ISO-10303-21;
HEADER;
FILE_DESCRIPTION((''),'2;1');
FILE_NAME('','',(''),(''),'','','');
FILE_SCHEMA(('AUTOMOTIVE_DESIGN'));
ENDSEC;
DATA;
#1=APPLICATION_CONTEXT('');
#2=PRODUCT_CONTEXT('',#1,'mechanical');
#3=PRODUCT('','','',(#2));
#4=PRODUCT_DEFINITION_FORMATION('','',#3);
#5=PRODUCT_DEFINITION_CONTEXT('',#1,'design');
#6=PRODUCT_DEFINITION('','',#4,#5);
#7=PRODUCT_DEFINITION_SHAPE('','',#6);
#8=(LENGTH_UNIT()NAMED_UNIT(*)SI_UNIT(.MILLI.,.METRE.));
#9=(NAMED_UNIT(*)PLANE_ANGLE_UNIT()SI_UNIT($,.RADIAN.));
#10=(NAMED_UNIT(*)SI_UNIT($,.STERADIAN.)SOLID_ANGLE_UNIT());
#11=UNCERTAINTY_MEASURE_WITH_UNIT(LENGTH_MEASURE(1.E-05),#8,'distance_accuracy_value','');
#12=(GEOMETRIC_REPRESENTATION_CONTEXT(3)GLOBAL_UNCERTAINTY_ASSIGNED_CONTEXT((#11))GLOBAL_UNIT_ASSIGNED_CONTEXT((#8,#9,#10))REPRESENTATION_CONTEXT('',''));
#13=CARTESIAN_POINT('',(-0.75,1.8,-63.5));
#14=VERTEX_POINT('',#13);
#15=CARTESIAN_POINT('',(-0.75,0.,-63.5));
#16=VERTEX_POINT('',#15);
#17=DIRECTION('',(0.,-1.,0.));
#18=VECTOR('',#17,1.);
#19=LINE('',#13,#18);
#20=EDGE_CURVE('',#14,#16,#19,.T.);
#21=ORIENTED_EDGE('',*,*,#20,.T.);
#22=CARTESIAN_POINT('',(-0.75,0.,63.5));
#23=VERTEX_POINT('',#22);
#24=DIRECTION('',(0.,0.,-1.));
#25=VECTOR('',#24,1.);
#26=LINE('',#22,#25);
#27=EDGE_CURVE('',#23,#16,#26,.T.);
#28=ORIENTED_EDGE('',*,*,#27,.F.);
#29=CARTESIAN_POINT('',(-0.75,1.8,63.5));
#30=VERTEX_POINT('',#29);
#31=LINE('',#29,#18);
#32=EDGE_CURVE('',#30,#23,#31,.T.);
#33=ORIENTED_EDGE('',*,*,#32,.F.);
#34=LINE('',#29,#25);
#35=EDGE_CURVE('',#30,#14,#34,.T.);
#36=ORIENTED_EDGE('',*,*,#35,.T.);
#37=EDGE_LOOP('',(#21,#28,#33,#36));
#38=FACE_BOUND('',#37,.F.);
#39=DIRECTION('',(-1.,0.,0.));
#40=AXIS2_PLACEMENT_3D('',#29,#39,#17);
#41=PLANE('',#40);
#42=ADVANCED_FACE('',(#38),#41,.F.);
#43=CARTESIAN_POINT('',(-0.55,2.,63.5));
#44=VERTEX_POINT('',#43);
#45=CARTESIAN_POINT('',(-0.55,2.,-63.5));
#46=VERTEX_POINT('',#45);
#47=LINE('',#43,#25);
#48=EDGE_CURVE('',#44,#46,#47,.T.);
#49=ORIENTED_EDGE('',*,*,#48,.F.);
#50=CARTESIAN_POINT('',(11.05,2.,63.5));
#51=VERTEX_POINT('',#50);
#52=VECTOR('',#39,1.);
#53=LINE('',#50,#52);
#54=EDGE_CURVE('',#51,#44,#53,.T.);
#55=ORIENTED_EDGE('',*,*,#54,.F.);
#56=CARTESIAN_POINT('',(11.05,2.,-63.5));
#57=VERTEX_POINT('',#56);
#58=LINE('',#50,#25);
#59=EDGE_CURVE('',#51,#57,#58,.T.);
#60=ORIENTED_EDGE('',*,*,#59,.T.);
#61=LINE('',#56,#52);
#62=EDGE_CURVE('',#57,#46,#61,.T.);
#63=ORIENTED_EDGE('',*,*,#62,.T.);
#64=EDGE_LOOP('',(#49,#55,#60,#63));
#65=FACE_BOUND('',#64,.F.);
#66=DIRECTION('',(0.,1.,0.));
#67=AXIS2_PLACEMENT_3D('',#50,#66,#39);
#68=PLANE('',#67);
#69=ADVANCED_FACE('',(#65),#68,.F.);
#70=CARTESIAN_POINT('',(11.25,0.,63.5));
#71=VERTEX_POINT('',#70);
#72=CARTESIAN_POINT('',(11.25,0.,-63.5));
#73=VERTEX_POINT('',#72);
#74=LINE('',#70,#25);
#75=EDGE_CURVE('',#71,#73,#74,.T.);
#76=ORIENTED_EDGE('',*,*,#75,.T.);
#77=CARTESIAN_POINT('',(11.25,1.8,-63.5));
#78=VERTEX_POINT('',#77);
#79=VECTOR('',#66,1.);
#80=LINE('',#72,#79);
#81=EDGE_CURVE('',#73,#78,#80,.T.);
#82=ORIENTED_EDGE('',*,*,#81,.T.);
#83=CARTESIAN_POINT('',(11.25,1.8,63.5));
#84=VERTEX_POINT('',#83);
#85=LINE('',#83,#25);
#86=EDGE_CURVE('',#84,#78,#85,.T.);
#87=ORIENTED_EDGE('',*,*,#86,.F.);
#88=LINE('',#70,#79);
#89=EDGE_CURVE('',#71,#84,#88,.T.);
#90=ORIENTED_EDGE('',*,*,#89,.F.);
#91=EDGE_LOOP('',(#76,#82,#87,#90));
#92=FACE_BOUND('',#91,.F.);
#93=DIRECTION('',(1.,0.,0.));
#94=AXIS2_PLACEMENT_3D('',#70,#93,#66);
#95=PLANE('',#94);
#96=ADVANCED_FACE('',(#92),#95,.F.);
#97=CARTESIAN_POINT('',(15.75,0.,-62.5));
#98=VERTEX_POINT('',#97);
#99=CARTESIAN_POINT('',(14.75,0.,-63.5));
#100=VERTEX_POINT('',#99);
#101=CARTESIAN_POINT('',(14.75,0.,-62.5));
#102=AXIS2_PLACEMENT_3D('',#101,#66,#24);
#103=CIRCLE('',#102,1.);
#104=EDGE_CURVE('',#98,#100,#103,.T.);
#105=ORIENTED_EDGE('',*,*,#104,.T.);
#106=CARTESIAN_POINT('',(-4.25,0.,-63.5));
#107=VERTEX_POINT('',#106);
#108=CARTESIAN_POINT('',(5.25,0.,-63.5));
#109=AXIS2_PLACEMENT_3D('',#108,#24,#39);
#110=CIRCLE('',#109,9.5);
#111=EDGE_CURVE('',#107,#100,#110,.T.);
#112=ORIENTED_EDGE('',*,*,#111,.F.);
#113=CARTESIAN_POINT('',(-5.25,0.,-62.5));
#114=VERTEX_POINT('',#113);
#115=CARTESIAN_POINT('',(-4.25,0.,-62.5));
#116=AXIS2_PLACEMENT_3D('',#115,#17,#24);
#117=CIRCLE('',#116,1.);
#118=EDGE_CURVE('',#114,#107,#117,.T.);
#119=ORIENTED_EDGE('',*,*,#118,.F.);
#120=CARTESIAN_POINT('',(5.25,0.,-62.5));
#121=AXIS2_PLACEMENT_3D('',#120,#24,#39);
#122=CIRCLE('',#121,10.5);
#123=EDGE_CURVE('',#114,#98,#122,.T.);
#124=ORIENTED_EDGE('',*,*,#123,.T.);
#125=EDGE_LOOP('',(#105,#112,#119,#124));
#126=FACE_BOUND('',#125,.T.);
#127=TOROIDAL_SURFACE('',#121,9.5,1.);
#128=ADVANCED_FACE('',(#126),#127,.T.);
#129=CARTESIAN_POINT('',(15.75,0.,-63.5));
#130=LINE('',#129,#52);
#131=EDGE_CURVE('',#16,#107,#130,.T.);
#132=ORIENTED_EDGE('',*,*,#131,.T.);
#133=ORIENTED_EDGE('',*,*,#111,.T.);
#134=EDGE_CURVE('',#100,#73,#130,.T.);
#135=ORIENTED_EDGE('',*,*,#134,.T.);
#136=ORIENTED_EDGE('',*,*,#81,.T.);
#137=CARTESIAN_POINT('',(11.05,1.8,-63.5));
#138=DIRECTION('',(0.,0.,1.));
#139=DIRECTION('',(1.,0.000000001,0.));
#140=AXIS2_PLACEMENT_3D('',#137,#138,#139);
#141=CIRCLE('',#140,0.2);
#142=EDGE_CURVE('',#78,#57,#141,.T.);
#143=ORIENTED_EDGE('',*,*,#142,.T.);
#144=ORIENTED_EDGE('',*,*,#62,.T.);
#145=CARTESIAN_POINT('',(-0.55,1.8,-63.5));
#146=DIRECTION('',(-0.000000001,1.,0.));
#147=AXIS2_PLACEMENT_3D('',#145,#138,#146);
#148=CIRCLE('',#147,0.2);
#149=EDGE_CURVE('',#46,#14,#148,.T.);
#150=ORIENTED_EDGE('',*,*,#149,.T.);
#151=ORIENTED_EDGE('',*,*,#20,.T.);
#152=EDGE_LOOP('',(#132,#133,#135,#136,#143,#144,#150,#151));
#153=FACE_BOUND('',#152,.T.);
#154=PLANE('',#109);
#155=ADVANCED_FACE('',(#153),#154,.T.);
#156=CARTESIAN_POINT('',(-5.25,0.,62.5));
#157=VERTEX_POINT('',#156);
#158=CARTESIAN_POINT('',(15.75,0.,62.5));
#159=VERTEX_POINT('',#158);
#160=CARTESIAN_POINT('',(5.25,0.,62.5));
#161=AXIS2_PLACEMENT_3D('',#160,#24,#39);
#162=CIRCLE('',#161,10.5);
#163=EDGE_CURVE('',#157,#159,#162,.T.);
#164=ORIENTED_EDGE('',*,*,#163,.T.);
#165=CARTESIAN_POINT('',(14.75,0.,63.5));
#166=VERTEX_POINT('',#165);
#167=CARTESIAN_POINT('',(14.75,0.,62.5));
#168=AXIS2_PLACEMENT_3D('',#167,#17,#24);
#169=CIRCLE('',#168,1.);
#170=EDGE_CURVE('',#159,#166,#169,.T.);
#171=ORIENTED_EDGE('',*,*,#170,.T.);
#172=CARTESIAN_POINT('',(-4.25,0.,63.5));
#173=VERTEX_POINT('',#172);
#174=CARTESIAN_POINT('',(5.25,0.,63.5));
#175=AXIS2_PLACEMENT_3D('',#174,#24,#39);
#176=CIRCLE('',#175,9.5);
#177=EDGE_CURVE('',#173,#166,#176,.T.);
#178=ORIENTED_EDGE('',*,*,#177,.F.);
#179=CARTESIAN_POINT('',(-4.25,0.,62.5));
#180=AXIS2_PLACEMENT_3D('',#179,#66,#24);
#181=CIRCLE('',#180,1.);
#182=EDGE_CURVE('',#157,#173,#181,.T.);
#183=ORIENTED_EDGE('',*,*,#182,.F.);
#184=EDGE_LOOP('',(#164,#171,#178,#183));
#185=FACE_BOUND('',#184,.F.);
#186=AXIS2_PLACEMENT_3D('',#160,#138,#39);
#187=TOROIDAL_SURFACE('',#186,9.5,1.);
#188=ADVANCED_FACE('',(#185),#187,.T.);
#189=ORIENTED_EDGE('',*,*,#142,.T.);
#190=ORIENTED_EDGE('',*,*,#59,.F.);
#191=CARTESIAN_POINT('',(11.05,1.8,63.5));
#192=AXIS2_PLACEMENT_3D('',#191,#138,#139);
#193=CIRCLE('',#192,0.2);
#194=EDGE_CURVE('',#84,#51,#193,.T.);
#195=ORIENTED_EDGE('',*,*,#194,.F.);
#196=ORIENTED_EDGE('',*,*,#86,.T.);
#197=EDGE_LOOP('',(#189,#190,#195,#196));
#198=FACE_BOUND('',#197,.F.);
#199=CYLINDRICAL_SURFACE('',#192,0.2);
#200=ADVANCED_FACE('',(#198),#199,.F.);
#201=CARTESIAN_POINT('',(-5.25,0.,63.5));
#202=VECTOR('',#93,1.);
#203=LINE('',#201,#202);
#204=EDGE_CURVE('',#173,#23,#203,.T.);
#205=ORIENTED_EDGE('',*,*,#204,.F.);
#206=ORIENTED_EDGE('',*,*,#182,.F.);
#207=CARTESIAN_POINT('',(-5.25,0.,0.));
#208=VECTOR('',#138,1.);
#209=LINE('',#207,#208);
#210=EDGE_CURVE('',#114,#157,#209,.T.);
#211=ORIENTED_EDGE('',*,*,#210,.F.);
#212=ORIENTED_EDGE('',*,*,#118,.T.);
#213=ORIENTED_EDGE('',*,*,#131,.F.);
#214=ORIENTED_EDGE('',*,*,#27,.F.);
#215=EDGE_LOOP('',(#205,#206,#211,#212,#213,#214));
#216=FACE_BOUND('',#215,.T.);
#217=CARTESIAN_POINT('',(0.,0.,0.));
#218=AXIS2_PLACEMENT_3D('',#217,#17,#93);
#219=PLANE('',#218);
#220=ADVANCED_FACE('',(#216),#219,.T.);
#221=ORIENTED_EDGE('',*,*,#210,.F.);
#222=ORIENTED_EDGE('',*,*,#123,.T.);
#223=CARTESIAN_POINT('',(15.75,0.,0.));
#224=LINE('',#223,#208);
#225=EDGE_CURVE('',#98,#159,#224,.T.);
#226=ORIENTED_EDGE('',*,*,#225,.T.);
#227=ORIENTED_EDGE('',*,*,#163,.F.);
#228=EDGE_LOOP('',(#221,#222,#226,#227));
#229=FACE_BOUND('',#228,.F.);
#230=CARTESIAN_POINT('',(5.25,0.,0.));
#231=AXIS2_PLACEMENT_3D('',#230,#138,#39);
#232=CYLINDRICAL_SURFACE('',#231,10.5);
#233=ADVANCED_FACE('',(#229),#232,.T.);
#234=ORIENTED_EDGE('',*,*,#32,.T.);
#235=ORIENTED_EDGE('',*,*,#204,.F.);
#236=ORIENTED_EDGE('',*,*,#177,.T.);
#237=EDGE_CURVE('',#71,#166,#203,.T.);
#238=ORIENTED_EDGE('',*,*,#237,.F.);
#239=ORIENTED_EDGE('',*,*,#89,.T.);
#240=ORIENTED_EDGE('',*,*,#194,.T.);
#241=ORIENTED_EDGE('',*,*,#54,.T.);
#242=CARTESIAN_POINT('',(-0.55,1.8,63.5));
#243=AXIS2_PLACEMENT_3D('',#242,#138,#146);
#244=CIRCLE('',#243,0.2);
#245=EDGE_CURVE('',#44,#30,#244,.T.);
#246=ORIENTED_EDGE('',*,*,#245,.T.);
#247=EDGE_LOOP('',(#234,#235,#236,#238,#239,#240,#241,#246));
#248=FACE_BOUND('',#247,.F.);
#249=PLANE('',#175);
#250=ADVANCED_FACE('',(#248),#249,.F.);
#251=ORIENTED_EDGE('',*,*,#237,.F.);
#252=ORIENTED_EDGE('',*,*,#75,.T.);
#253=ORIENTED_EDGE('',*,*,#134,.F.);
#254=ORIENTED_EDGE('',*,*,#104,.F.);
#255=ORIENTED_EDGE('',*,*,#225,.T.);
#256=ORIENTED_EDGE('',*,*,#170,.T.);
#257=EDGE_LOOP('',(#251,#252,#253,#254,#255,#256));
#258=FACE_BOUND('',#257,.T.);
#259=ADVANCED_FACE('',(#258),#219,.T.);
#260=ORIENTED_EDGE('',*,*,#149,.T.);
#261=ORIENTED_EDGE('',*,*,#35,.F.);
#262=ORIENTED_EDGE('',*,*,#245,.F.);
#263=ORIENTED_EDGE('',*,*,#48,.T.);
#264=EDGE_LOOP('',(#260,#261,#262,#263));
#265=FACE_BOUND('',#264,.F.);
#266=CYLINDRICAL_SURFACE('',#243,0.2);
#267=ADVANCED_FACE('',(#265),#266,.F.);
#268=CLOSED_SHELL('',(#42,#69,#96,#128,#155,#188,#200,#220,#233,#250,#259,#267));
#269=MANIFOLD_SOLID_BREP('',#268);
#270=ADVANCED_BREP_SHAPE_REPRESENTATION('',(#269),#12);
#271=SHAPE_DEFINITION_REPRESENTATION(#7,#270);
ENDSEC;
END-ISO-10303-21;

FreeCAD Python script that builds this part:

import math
import FreeCAD as App
import Part
import Sketcher

V = App.Vector


def edges_at(feature, points):
    """Names of the edges that pass closest to the given points."""
    edges = feature.Shape.Edges
    near = lambda p: min(range(len(edges)), key=lambda i: edges[i].distToShape(Part.Vertex(*p))[0])
    return sorted({f"Edge{near(p) + 1}" for p in points})

doc = App.newDocument("Part")
body = doc.addObject("PartDesign::Body", "Body")

# Sketch on XZ plane
sketch1 = body.newObject("Sketcher::SketchObject", "Sketch")
sketch1.AttachmentSupport = (doc.getObject("XZ_Plane"), [""])
sketch1.MapMode = "FlatFace"
sketch1.addGeometry(Part.LineSegment(V(-5, 64, 0), V(-5, -64, 0)), False)
sketch1.addGeometry(Part.LineSegment(V(-5, -64, 0), V(5, -64, 0)), False)
sketch1.addGeometry(Part.LineSegment(V(5, -64, 0), V(5, 64, 0)), False)
sketch1.addGeometry(Part.LineSegment(V(5, 64, 0), V(-5, 64, 0)), False)
sketch1.addGeometry(Part.LineSegment(V(5, 64, 0), V(5, -64, 0)), True)  # axis
sketch1.addConstraint(Sketcher.Constraint("Coincident", 0, 2, 1, 1))
sketch1.addConstraint(Sketcher.Constraint("Coincident", 1, 2, 2, 1))
sketch1.addConstraint(Sketcher.Constraint("Coincident", 2, 2, 3, 1))
sketch1.addConstraint(Sketcher.Constraint("Coincident", 3, 2, 0, 1))
sketch1.addConstraint(Sketcher.Constraint("Vertical", 0))
sketch1.addConstraint(Sketcher.Constraint("Horizontal", 1))
sketch1.addConstraint(Sketcher.Constraint("Vertical", 2))
sketch1.addConstraint(Sketcher.Constraint("Horizontal", 3))
sketch1.addConstraint(Sketcher.Constraint("Vertical", 4))
sketch1.addConstraint(Sketcher.Constraint("Coincident", 4, 1, 2, 2))
sketch1.addConstraint(Sketcher.Constraint("Symmetric", 0, 2, 2, 2, -1, 1))
sketch1.addConstraint(Sketcher.Constraint("Horizontal", 0, 2, 4, 2))
sketch1.addConstraint(Sketcher.Constraint("DistanceY", 0, 2, 0, 1, 127.0))
sketch1.addConstraint(Sketcher.Constraint("DistanceX", 1, 1, 1, 2, 10.5))
revolution = body.newObject("PartDesign::Revolution", "Revolution")
revolution.Profile = sketch1
revolution.ReferenceAxis = (sketch1, ["Axis0"])
revolution.Angle = 180

# Sketch on XY plane
sketch2 = body.newObject("Sketcher::SketchObject", "Sketch001")
sketch2.AttachmentSupport = (doc.getObject("XY_Plane"), [""])
sketch2.MapMode = "FlatFace"
sketch2.AttachmentOffset = App.Placement(V(0, 0, 63.5), App.Rotation())
sketch2.addGeometry(Part.LineSegment(V(-0.75, 0, 0), V(11.25, 0, 0)), False)
sketch2.addGeometry(Part.LineSegment(V(11.25, 0, 0), V(11.25, 1.8, 0)), False)
sketch2.addGeometry(Part.ArcOfCircle(Part.Circle(V(11.05, 1.8, 0), V(0, 0, 1), 0.2), math.radians(0), math.radians(90)), False)
sketch2.addGeometry(Part.LineSegment(V(11.05, 2, 0), V(-0.55, 2, 0)), False)
sketch2.addGeometry(Part.ArcOfCircle(Part.Circle(V(-0.55, 1.8, 0), V(0, 0, 1), 0.2), math.radians(90), math.radians(180)), False)
sketch2.addGeometry(Part.LineSegment(V(-0.75, 1.8, 0), V(-0.75, 0, 0)), False)
sketch2.addConstraint(Sketcher.Constraint("Coincident", 0, 2, 1, 1))
sketch2.addConstraint(Sketcher.Constraint("Tangent", 1, 2, 2, 1))
sketch2.addConstraint(Sketcher.Constraint("Tangent", 2, 2, 3, 1))
sketch2.addConstraint(Sketcher.Constraint("Tangent", 3, 2, 4, 1))
sketch2.addConstraint(Sketcher.Constraint("Tangent", 4, 2, 5, 1))
sketch2.addConstraint(Sketcher.Constraint("Coincident", 5, 2, 0, 1))
sketch2.addConstraint(Sketcher.Constraint("Horizontal", 0))
sketch2.addConstraint(Sketcher.Constraint("Vertical", 1))
sketch2.addConstraint(Sketcher.Constraint("Horizontal", 3))
sketch2.addConstraint(Sketcher.Constraint("Vertical", 5))
sketch2.addConstraint(Sketcher.Constraint("Equal", 2, 4))
sketch2.addConstraint(Sketcher.Constraint("PointOnObject", 0, 2, -1))
sketch2.addConstraint(Sketcher.Constraint("Radius", 2, 0.2))
sketch2.addConstraint(Sketcher.Constraint("DistanceX", 0, 1, 0, 2, 12.0))
sketch2.addConstraint(Sketcher.Constraint("DistanceY", 1, 1, 1, 2, 1.8))
sketch2.addConstraint(Sketcher.Constraint("DistanceX", -1, 1, 2, 3, 11.05))
pocket1 = body.newObject("PartDesign::Pocket", "Pocket")
pocket1.Profile = sketch2
pocket1.Length = 127
doc.recompute()

fillet = body.newObject("PartDesign::Fillet", "Fillet")
fillet.Base = (pocket1, edges_at(pocket1, [(5.25, 10.5, 63.5)]))
fillet.Radius = 1
doc.recompute()

fillet2 = body.newObject("PartDesign::Fillet", "Fillet001")
fillet2.Base = (fillet, edges_at(fillet, [(5.25, 10.5, -63.5)]))
fillet2.Radius = 1

doc.recompute()
